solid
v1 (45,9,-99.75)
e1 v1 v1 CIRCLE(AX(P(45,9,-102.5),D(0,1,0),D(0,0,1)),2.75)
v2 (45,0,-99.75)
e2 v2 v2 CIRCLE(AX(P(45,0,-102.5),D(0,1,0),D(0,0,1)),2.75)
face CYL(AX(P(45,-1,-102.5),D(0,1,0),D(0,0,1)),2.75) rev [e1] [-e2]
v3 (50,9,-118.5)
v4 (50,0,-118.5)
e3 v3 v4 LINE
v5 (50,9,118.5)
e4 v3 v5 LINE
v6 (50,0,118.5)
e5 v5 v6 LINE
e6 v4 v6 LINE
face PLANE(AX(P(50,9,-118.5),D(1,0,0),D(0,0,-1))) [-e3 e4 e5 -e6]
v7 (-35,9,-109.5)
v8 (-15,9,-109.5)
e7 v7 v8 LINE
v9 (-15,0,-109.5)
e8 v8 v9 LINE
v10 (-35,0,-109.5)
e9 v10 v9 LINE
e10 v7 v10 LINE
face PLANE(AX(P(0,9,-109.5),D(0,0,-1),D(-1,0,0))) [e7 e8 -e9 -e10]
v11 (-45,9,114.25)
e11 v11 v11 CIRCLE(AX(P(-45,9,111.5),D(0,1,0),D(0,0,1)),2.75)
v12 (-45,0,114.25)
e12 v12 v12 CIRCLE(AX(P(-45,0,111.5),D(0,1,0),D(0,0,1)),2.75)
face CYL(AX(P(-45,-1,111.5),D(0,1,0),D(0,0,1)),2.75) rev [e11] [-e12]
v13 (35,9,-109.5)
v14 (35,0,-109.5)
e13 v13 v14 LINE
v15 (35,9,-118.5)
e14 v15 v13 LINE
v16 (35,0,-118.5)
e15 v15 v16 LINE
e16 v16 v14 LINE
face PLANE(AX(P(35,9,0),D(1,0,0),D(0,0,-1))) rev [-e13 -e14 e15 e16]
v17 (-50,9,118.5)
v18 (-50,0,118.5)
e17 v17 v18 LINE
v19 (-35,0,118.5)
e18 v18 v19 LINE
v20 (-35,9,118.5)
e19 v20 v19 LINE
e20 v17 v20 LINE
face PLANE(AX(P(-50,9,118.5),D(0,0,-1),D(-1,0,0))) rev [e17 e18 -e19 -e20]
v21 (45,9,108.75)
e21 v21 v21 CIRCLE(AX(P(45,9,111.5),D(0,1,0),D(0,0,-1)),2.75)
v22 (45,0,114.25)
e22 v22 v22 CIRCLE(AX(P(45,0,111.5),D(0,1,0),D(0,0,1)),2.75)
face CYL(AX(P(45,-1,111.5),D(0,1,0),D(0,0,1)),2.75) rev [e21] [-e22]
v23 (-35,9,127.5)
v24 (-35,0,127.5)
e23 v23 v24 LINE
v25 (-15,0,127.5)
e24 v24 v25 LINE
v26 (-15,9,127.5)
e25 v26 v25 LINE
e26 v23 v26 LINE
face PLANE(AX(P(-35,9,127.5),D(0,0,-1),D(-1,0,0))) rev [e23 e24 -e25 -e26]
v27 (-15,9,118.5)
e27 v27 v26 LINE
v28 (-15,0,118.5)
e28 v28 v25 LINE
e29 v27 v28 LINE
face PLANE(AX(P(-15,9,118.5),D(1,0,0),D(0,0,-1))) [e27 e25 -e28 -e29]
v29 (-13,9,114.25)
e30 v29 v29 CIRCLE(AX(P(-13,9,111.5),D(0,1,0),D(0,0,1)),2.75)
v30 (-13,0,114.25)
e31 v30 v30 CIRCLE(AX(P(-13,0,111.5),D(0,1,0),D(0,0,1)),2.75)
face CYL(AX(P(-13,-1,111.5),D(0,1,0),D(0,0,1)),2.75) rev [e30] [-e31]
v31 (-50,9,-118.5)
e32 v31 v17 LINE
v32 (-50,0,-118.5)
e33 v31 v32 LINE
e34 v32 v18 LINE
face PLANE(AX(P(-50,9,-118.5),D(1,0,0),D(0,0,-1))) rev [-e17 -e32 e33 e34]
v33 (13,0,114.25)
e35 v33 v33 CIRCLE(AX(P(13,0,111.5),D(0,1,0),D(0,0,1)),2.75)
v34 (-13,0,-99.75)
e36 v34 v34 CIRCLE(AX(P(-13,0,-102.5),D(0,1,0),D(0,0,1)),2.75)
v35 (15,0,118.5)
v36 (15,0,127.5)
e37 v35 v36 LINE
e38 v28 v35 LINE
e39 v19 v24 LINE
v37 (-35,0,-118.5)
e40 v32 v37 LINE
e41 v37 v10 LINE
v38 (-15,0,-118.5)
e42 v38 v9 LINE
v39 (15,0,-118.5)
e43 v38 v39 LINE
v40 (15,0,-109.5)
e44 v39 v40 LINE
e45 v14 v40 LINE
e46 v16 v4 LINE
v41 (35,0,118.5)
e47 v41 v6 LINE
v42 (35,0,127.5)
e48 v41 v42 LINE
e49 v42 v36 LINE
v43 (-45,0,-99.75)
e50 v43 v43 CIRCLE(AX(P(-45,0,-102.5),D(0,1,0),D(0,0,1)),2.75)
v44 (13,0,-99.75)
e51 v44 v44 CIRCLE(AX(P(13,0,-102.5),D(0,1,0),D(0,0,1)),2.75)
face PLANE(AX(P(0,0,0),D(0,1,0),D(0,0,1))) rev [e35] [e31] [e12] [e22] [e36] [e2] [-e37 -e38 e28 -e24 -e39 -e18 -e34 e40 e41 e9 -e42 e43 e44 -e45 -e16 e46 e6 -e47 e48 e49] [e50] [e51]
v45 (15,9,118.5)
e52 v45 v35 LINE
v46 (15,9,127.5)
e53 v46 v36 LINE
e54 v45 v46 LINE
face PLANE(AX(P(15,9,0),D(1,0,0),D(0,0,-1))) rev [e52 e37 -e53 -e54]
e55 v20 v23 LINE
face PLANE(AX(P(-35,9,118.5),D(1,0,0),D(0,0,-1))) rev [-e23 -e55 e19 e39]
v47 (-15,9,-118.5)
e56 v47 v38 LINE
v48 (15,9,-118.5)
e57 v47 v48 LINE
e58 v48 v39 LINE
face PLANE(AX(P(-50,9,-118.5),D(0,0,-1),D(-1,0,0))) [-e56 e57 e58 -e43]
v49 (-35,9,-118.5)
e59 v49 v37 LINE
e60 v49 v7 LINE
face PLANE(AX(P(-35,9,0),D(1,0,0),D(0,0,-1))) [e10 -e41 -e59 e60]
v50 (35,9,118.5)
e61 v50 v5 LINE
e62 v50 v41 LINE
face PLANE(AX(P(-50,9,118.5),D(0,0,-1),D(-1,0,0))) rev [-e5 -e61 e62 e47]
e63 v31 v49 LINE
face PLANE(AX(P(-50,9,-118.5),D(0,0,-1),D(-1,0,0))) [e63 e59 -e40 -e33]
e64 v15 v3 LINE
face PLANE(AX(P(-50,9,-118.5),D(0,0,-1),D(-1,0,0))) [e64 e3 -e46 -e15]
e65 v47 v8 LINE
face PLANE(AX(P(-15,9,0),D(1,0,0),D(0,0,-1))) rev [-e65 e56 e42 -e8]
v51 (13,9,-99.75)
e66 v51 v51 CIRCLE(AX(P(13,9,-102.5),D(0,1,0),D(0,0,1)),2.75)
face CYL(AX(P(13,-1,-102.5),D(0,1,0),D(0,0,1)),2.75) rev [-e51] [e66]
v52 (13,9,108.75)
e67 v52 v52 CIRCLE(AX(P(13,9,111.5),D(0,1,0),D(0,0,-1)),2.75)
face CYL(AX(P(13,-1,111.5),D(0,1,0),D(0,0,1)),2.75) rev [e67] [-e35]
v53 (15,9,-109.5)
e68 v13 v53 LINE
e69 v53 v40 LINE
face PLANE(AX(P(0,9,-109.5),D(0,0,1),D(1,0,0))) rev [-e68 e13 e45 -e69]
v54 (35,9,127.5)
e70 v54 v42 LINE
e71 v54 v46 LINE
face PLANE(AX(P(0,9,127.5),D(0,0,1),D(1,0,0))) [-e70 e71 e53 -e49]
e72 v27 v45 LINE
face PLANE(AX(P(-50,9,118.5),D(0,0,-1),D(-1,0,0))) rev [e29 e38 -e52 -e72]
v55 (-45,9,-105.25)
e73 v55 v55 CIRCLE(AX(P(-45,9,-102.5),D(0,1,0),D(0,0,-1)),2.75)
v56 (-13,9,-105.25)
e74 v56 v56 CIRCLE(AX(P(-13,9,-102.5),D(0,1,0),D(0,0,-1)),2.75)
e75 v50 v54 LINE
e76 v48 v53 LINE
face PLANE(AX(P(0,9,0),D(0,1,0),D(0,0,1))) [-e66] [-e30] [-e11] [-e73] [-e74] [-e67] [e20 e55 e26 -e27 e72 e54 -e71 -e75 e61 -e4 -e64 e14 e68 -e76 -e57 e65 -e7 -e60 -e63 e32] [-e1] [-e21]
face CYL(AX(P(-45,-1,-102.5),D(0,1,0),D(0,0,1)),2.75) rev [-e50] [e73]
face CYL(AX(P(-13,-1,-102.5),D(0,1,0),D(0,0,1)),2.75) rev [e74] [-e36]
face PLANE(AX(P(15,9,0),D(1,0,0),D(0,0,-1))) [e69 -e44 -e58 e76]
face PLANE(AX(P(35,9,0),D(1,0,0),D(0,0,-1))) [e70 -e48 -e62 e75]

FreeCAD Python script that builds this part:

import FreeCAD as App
import Part
import Sketcher

V = App.Vector


def add_polygon(sketch, points):
    """Adds a closed chain of lines whose ends are joined by coincident constraints."""
    first, n = sketch.GeometryCount, len(points)
    for a, b in zip(points, points[1:] + points[:1]):
        sketch.addGeometry(Part.LineSegment(App.Vector(*a, 0), App.Vector(*b, 0)), False)
    for i in range(n):
        sketch.addConstraint(Sketcher.Constraint("Coincident", first + i, 2, first + (i + 1) % n, 1))

doc = App.newDocument("Part")
body = doc.addObject("PartDesign::Body", "Body")

sketch1 = body.newObject("Sketcher::SketchObject", "Sketch")
sketch1.AttachmentSupport = (doc.getObject("XZ_Plane"), [""])
sketch1.MapMode = "FlatFace"
add_polygon(sketch1, [(-35, -118), (-50, -118), (-50, 118), (-35, 118), (-35, 128), (-15, 128), (-15, 118), (15, 118), (15, 128), (35, 128), (35, 118), (50, 118), (50, -118), (35, -118), (35, -110), (15, -110), (15, -118), (-15, -118), (-15, -110), (-35, -110)])
sketch1.addConstraint([
    Sketcher.Constraint("Horizontal", 0),
    Sketcher.Constraint("Vertical", 1),
    Sketcher.Constraint("Horizontal", 2),
    Sketcher.Constraint("Vertical", 3),
    Sketcher.Constraint("Horizontal", 4),
    Sketcher.Constraint("Vertical", 5),
    Sketcher.Constraint("Horizontal", 6),
    Sketcher.Constraint("Vertical", 7),
    Sketcher.Constraint("Horizontal", 8),
    Sketcher.Constraint("Vertical", 9),
    Sketcher.Constraint("Horizontal", 10),
    Sketcher.Constraint("Vertical", 11),
    Sketcher.Constraint("Horizontal", 12),
    Sketcher.Constraint("Vertical", 13),
    Sketcher.Constraint("Horizontal", 14),
    Sketcher.Constraint("Vertical", 15),
    Sketcher.Constraint("Horizontal", 16),
    Sketcher.Constraint("Vertical", 17),
    Sketcher.Constraint("Horizontal", 18),
    Sketcher.Constraint("Vertical", 19),
    Sketcher.Constraint("Symmetric", 0, 2, 10, 2, -1, 1),
    Sketcher.Constraint("Symmetric", 2, 2, 12, 2, -1, 1),
    Sketcher.Constraint("Symmetric", 5, 2, 15, 2, -1, 1),
    Sketcher.Constraint("Symmetric", 4, 2, 7, 2, -2),
    Sketcher.Constraint("Symmetric", 2, 2, 9, 2, -2),
    Sketcher.Constraint("Symmetric", 14, 2, 17, 2, -2),
    Sketcher.Constraint("Horizontal", 2, 2, 5, 2),
    Sketcher.Constraint("Vertical", 3, 2, 18, 2),
    Sketcher.Constraint("Equal", 9, 13),
    Sketcher.Constraint("DistanceX", 0, 2, 0, 1, 15.0),
    Sketcher.Constraint("DistanceX", 4, 1, 4, 2, 20.0),
    Sketcher.Constraint("DistanceX", 6, 1, 6, 2, 30.0),
    Sketcher.Constraint("DistanceY", 1, 1, 1, 2, 237.0),
    Sketcher.Constraint("DistanceY", 3, 1, 3, 2, 9.0),
])
pad1 = body.newObject("PartDesign::Pad", "Pad")
pad1.Profile = sketch1
pad1.Length = 9
pad1.Reversed = True

sketch2 = body.newObject("Sketcher::SketchObject", "Sketch001")
sketch2.AttachmentSupport = (doc.getObject("XZ_Plane"), [""])
sketch2.MapMode = "FlatFace"
sketch2.AttachmentOffset = App.Placement(V(0, 0, -9), App.Rotation())
sketch2.addGeometry([
    Part.Circle(V(-45, 111.5, 0), V(0, 0, 1), 2.8),
    Part.Circle(V(-13, 111.5, 0), V(0, 0, 1), 2.8),
    Part.Circle(V(13, 111.5, 0), V(0, 0, 1), 2.8),
    Part.Circle(V(45, 111.5, 0), V(0, 0, 1), 2.8),
    Part.Circle(V(-45, -102.5, 0), V(0, 0, 1), 2.8),
    Part.Circle(V(-13, -102.5, 0), V(0, 0, 1), 2.8),
    Part.Circle(V(13, -102.5, 0), V(0, 0, 1), 2.8),
    Part.Circle(V(45, -102.5, 0), V(0, 0, 1), 2.8),
], False)
sketch2.addConstraint([
    Sketcher.Constraint("Equal", 0, 1),
    Sketcher.Constraint("Equal", 1, 2),
    Sketcher.Constraint("Equal", 2, 3),
    Sketcher.Constraint("Equal", 3, 4),
    Sketcher.Constraint("Equal", 4, 5),
    Sketcher.Constraint("Equal", 5, 6),
    Sketcher.Constraint("Equal", 6, 7),
    Sketcher.Constraint("Symmetric", 1, 3, 2, 3, -2),
    Sketcher.Constraint("Symmetric", 0, 3, 3, 3, -2),
    Sketcher.Constraint("Symmetric", 5, 3, 6, 3, -2),
    Sketcher.Constraint("Symmetric", 4, 3, 7, 3, -2),
    Sketcher.Constraint("Horizontal", 0, 3, 1, 3),
    Sketcher.Constraint("Horizontal", 4, 3, 5, 3),
    Sketcher.Constraint("Vertical", 0, 3, 4, 3),
    Sketcher.Constraint("Vertical", 1, 3, 5, 3),
    Sketcher.Constraint("Diameter", 0, 5.5),
    Sketcher.Constraint("DistanceX", 0, 3, -1, 1, 45.0),
    Sketcher.Constraint("DistanceX", 1, 3, -1, 1, 13.0),
    Sketcher.Constraint("DistanceY", 4, 3, 0, 3, 214.0),
    Sketcher.Constraint("DistanceY", -1, 1, 0, 3, 111.5),
])
pocket1 = body.newObject("PartDesign::Pocket", "Pocket")
pocket1.Profile = sketch2
pocket1.Length = 10
pocket1.Reversed = True

doc.recompute()
